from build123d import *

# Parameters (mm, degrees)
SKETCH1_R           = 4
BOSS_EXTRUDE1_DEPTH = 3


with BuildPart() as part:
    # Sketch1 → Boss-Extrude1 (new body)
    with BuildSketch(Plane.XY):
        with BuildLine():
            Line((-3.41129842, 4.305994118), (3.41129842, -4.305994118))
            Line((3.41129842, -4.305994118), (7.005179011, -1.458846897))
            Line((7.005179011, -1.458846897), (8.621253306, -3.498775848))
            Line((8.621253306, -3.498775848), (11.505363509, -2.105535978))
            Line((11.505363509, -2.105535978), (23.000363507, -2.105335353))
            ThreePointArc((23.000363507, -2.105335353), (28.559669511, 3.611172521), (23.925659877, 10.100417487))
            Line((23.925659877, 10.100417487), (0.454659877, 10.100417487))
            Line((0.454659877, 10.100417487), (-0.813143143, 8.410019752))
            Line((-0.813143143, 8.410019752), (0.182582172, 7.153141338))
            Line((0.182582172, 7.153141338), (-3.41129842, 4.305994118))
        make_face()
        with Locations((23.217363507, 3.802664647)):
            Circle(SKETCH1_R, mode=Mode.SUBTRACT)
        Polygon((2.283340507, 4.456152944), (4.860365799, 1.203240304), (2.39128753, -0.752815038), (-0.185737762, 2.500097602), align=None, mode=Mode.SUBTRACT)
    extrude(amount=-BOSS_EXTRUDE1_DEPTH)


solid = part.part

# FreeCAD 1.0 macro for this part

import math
import FreeCAD as App
import Part
import Sketcher
Q = App.Units.Quantity


def add_polygon(sketch, points):
    """Adds a closed chain of lines whose ends are joined by coincident constraints."""
    first, n = sketch.GeometryCount, len(points)
    for a, b in zip(points, points[1:] + points[:1]):
        sketch.addGeometry(Part.LineSegment(App.Vector(*a, 0), App.Vector(*b, 0)), False)
    for i in range(n):
        sketch.addConstraint(Sketcher.Constraint("Coincident", first + i, 2, first + (i + 1) % n, 1))

doc = App.newDocument("Part")
params = doc.addObject("Spreadsheet::Sheet", "Params")
for row, (alias, value) in enumerate([
    ("sketch1_diameter", "8 mm"),
    ("sketch1_radius", "6.22 mm"),
    ("sketch1_length", "3.15 mm"),
    ("sketch1_length2", "4.15 mm"),
    ("pad1_length", "3 mm"),
], start=1):
    params.set(f"A{row}", alias)
    params.set(f"B{row}", "=" + value)
    params.setAlias(f"B{row}", alias)

body = doc.addObject("PartDesign::Body", "Body")

sketch1 = body.newObject("Sketcher::SketchObject", "Sketch")
sketch1.AttachmentSupport = (doc.getObject("XY_Plane"), [""])
sketch1.MapMode = "FlatFace"
sketch1.addGeometry(Part.LineSegment(App.Vector(-3.4, 4.3, 0), App.Vector(3.4, -4.3, 0)), False)
sketch1.addGeometry(Part.LineSegment(App.Vector(3.4, -4.3, 0), App.Vector(7, -1.5, 0)), False)
sketch1.addGeometry(Part.LineSegment(App.Vector(7, -1.5, 0), App.Vector(8.6, -3.5, 0)), False)
sketch1.addGeometry(Part.LineSegment(App.Vector(8.6, -3.5, 0), App.Vector(11.5, -2.1, 0)), False)
sketch1.addGeometry(Part.LineSegment(App.Vector(11.5, -2.1, 0), App.Vector(23, -2.1, 0)), False)
sketch1.addGeometry(Part.ArcOfCircle(Part.Circle(App.Vector(22.4, 4.1, 0), App.Vector(0, 0, 1), 6.2), math.radians(-84), math.radians(75)), False)
sketch1.addGeometry(Part.LineSegment(App.Vector(23.9, 10.1, 0), App.Vector(0.5, 10.1, 0)), False)
sketch1.addGeometry(Part.LineSegment(App.Vector(0.5, 10.1, 0), App.Vector(-0.8, 8.4, 0)), False)
sketch1.addGeometry(Part.LineSegment(App.Vector(-0.8, 8.4, 0), App.Vector(0.2, 7.2, 0)), False)
sketch1.addGeometry(Part.LineSegment(App.Vector(0.2, 7.2, 0), App.Vector(-3.4, 4.3, 0)), False)
add_polygon(sketch1, [(-0.2, 2.5), (2.3, 4.5), (4.9, 1.2), (2.4, -0.8)])
sketch1.addGeometry(Part.Circle(App.Vector(23.2, 3.8, 0), App.Vector(0, 0, 1), 4), False)
sketch1.addConstraint([
    Sketcher.Constraint("Coincident", 0, 2, 1, 1),
    Sketcher.Constraint("Coincident", 1, 2, 2, 1),
    Sketcher.Constraint("Coincident", 2, 2, 3, 1),
    Sketcher.Constraint("Coincident", 3, 2, 4, 1),
    Sketcher.Constraint("Coincident", 4, 2, 5, 1),
    Sketcher.Constraint("Coincident", 5, 2, 6, 1),
    Sketcher.Constraint("Coincident", 6, 2, 7, 1),
    Sketcher.Constraint("Coincident", 7, 2, 8, 1),
    Sketcher.Constraint("Coincident", 8, 2, 9, 1),
    Sketcher.Constraint("Coincident", 9, 2, 0, 1),
    Sketcher.Constraint("Horizontal", 6),
    Sketcher.Constraint("Symmetric", 0, 2, 9, 2, -1, 1),
    Sketcher.Constraint("Perpendicular", 0, 1),
    Sketcher.Constraint("Perpendicular", 1, 2),
    Sketcher.Constraint("Parallel", 2, 8),
    Sketcher.Constraint("Perpendicular", 8, 9),
    Sketcher.Constraint("Parallel", 9, 10),
    Sketcher.Constraint("Perpendicular", 10, 11),
    Sketcher.Constraint("Perpendicular", 11, 12),
    Sketcher.Constraint("Perpendicular", 12, 13),
    Sketcher.Constraint("Equal", 1, 9),
    Sketcher.Constraint("Diameter", 14, 8.0),
    Sketcher.Constraint("Radius", 5, 6.22),
    Sketcher.Constraint("Angle", 7, Q("-126.87 deg")),
    Sketcher.Constraint("Distance", 10, 3.15),
    Sketcher.Constraint("Distance", 11, 4.15),
    Sketcher.Constraint("DistanceX", 6, 2, 6, 1, 23.471),
    Sketcher.Constraint("Distance", 0, 10.987),
    Sketcher.Constraint("Distance", 1, 4.585),
    Sketcher.Constraint("Distance", 3, 3.203),
    Sketcher.Constraint("Distance", 4, 11.495),
    Sketcher.Constraint("Distance", 7, 2.113),
    Sketcher.Constraint("DistanceX", 3, 2, 14, 3, 11.712),
    Sketcher.Constraint("DistanceY", 4, 2, 14, 3, 5.908),
    Sketcher.Constraint("DistanceY", 1, 2, 10, 2, 5.915),
    Sketcher.Constraint("Distance", 2, 2.6025),
    Sketcher.Constraint("Distance", 8, 1.6035),
    Sketcher.Constraint("DistanceX", -1, 1, 0, 2, 3.411298),
    Sketcher.Constraint("DistanceY", 3, 2, 14, 3, 5.908201),
    Sketcher.Constraint("DistanceY", -1, 1, 5, 3, 4.081351),
    Sketcher.Constraint("DistanceX", -1, 1, 10, 2, 2.283341),
])
sketch1.setExpression("Constraints[25]", "Params.sketch1_diameter")
sketch1.setExpression("Constraints[26]", "Params.sketch1_radius")
sketch1.setExpression("Constraints[28]", "Params.sketch1_length")
sketch1.setExpression("Constraints[29]", "Params.sketch1_length2")
pad1 = body.newObject("PartDesign::Pad", "Pad")
pad1.Profile = sketch1
pad1.setExpression("Length", "Params.pad1_length")
pad1.Reversed = True

doc.recompute()
